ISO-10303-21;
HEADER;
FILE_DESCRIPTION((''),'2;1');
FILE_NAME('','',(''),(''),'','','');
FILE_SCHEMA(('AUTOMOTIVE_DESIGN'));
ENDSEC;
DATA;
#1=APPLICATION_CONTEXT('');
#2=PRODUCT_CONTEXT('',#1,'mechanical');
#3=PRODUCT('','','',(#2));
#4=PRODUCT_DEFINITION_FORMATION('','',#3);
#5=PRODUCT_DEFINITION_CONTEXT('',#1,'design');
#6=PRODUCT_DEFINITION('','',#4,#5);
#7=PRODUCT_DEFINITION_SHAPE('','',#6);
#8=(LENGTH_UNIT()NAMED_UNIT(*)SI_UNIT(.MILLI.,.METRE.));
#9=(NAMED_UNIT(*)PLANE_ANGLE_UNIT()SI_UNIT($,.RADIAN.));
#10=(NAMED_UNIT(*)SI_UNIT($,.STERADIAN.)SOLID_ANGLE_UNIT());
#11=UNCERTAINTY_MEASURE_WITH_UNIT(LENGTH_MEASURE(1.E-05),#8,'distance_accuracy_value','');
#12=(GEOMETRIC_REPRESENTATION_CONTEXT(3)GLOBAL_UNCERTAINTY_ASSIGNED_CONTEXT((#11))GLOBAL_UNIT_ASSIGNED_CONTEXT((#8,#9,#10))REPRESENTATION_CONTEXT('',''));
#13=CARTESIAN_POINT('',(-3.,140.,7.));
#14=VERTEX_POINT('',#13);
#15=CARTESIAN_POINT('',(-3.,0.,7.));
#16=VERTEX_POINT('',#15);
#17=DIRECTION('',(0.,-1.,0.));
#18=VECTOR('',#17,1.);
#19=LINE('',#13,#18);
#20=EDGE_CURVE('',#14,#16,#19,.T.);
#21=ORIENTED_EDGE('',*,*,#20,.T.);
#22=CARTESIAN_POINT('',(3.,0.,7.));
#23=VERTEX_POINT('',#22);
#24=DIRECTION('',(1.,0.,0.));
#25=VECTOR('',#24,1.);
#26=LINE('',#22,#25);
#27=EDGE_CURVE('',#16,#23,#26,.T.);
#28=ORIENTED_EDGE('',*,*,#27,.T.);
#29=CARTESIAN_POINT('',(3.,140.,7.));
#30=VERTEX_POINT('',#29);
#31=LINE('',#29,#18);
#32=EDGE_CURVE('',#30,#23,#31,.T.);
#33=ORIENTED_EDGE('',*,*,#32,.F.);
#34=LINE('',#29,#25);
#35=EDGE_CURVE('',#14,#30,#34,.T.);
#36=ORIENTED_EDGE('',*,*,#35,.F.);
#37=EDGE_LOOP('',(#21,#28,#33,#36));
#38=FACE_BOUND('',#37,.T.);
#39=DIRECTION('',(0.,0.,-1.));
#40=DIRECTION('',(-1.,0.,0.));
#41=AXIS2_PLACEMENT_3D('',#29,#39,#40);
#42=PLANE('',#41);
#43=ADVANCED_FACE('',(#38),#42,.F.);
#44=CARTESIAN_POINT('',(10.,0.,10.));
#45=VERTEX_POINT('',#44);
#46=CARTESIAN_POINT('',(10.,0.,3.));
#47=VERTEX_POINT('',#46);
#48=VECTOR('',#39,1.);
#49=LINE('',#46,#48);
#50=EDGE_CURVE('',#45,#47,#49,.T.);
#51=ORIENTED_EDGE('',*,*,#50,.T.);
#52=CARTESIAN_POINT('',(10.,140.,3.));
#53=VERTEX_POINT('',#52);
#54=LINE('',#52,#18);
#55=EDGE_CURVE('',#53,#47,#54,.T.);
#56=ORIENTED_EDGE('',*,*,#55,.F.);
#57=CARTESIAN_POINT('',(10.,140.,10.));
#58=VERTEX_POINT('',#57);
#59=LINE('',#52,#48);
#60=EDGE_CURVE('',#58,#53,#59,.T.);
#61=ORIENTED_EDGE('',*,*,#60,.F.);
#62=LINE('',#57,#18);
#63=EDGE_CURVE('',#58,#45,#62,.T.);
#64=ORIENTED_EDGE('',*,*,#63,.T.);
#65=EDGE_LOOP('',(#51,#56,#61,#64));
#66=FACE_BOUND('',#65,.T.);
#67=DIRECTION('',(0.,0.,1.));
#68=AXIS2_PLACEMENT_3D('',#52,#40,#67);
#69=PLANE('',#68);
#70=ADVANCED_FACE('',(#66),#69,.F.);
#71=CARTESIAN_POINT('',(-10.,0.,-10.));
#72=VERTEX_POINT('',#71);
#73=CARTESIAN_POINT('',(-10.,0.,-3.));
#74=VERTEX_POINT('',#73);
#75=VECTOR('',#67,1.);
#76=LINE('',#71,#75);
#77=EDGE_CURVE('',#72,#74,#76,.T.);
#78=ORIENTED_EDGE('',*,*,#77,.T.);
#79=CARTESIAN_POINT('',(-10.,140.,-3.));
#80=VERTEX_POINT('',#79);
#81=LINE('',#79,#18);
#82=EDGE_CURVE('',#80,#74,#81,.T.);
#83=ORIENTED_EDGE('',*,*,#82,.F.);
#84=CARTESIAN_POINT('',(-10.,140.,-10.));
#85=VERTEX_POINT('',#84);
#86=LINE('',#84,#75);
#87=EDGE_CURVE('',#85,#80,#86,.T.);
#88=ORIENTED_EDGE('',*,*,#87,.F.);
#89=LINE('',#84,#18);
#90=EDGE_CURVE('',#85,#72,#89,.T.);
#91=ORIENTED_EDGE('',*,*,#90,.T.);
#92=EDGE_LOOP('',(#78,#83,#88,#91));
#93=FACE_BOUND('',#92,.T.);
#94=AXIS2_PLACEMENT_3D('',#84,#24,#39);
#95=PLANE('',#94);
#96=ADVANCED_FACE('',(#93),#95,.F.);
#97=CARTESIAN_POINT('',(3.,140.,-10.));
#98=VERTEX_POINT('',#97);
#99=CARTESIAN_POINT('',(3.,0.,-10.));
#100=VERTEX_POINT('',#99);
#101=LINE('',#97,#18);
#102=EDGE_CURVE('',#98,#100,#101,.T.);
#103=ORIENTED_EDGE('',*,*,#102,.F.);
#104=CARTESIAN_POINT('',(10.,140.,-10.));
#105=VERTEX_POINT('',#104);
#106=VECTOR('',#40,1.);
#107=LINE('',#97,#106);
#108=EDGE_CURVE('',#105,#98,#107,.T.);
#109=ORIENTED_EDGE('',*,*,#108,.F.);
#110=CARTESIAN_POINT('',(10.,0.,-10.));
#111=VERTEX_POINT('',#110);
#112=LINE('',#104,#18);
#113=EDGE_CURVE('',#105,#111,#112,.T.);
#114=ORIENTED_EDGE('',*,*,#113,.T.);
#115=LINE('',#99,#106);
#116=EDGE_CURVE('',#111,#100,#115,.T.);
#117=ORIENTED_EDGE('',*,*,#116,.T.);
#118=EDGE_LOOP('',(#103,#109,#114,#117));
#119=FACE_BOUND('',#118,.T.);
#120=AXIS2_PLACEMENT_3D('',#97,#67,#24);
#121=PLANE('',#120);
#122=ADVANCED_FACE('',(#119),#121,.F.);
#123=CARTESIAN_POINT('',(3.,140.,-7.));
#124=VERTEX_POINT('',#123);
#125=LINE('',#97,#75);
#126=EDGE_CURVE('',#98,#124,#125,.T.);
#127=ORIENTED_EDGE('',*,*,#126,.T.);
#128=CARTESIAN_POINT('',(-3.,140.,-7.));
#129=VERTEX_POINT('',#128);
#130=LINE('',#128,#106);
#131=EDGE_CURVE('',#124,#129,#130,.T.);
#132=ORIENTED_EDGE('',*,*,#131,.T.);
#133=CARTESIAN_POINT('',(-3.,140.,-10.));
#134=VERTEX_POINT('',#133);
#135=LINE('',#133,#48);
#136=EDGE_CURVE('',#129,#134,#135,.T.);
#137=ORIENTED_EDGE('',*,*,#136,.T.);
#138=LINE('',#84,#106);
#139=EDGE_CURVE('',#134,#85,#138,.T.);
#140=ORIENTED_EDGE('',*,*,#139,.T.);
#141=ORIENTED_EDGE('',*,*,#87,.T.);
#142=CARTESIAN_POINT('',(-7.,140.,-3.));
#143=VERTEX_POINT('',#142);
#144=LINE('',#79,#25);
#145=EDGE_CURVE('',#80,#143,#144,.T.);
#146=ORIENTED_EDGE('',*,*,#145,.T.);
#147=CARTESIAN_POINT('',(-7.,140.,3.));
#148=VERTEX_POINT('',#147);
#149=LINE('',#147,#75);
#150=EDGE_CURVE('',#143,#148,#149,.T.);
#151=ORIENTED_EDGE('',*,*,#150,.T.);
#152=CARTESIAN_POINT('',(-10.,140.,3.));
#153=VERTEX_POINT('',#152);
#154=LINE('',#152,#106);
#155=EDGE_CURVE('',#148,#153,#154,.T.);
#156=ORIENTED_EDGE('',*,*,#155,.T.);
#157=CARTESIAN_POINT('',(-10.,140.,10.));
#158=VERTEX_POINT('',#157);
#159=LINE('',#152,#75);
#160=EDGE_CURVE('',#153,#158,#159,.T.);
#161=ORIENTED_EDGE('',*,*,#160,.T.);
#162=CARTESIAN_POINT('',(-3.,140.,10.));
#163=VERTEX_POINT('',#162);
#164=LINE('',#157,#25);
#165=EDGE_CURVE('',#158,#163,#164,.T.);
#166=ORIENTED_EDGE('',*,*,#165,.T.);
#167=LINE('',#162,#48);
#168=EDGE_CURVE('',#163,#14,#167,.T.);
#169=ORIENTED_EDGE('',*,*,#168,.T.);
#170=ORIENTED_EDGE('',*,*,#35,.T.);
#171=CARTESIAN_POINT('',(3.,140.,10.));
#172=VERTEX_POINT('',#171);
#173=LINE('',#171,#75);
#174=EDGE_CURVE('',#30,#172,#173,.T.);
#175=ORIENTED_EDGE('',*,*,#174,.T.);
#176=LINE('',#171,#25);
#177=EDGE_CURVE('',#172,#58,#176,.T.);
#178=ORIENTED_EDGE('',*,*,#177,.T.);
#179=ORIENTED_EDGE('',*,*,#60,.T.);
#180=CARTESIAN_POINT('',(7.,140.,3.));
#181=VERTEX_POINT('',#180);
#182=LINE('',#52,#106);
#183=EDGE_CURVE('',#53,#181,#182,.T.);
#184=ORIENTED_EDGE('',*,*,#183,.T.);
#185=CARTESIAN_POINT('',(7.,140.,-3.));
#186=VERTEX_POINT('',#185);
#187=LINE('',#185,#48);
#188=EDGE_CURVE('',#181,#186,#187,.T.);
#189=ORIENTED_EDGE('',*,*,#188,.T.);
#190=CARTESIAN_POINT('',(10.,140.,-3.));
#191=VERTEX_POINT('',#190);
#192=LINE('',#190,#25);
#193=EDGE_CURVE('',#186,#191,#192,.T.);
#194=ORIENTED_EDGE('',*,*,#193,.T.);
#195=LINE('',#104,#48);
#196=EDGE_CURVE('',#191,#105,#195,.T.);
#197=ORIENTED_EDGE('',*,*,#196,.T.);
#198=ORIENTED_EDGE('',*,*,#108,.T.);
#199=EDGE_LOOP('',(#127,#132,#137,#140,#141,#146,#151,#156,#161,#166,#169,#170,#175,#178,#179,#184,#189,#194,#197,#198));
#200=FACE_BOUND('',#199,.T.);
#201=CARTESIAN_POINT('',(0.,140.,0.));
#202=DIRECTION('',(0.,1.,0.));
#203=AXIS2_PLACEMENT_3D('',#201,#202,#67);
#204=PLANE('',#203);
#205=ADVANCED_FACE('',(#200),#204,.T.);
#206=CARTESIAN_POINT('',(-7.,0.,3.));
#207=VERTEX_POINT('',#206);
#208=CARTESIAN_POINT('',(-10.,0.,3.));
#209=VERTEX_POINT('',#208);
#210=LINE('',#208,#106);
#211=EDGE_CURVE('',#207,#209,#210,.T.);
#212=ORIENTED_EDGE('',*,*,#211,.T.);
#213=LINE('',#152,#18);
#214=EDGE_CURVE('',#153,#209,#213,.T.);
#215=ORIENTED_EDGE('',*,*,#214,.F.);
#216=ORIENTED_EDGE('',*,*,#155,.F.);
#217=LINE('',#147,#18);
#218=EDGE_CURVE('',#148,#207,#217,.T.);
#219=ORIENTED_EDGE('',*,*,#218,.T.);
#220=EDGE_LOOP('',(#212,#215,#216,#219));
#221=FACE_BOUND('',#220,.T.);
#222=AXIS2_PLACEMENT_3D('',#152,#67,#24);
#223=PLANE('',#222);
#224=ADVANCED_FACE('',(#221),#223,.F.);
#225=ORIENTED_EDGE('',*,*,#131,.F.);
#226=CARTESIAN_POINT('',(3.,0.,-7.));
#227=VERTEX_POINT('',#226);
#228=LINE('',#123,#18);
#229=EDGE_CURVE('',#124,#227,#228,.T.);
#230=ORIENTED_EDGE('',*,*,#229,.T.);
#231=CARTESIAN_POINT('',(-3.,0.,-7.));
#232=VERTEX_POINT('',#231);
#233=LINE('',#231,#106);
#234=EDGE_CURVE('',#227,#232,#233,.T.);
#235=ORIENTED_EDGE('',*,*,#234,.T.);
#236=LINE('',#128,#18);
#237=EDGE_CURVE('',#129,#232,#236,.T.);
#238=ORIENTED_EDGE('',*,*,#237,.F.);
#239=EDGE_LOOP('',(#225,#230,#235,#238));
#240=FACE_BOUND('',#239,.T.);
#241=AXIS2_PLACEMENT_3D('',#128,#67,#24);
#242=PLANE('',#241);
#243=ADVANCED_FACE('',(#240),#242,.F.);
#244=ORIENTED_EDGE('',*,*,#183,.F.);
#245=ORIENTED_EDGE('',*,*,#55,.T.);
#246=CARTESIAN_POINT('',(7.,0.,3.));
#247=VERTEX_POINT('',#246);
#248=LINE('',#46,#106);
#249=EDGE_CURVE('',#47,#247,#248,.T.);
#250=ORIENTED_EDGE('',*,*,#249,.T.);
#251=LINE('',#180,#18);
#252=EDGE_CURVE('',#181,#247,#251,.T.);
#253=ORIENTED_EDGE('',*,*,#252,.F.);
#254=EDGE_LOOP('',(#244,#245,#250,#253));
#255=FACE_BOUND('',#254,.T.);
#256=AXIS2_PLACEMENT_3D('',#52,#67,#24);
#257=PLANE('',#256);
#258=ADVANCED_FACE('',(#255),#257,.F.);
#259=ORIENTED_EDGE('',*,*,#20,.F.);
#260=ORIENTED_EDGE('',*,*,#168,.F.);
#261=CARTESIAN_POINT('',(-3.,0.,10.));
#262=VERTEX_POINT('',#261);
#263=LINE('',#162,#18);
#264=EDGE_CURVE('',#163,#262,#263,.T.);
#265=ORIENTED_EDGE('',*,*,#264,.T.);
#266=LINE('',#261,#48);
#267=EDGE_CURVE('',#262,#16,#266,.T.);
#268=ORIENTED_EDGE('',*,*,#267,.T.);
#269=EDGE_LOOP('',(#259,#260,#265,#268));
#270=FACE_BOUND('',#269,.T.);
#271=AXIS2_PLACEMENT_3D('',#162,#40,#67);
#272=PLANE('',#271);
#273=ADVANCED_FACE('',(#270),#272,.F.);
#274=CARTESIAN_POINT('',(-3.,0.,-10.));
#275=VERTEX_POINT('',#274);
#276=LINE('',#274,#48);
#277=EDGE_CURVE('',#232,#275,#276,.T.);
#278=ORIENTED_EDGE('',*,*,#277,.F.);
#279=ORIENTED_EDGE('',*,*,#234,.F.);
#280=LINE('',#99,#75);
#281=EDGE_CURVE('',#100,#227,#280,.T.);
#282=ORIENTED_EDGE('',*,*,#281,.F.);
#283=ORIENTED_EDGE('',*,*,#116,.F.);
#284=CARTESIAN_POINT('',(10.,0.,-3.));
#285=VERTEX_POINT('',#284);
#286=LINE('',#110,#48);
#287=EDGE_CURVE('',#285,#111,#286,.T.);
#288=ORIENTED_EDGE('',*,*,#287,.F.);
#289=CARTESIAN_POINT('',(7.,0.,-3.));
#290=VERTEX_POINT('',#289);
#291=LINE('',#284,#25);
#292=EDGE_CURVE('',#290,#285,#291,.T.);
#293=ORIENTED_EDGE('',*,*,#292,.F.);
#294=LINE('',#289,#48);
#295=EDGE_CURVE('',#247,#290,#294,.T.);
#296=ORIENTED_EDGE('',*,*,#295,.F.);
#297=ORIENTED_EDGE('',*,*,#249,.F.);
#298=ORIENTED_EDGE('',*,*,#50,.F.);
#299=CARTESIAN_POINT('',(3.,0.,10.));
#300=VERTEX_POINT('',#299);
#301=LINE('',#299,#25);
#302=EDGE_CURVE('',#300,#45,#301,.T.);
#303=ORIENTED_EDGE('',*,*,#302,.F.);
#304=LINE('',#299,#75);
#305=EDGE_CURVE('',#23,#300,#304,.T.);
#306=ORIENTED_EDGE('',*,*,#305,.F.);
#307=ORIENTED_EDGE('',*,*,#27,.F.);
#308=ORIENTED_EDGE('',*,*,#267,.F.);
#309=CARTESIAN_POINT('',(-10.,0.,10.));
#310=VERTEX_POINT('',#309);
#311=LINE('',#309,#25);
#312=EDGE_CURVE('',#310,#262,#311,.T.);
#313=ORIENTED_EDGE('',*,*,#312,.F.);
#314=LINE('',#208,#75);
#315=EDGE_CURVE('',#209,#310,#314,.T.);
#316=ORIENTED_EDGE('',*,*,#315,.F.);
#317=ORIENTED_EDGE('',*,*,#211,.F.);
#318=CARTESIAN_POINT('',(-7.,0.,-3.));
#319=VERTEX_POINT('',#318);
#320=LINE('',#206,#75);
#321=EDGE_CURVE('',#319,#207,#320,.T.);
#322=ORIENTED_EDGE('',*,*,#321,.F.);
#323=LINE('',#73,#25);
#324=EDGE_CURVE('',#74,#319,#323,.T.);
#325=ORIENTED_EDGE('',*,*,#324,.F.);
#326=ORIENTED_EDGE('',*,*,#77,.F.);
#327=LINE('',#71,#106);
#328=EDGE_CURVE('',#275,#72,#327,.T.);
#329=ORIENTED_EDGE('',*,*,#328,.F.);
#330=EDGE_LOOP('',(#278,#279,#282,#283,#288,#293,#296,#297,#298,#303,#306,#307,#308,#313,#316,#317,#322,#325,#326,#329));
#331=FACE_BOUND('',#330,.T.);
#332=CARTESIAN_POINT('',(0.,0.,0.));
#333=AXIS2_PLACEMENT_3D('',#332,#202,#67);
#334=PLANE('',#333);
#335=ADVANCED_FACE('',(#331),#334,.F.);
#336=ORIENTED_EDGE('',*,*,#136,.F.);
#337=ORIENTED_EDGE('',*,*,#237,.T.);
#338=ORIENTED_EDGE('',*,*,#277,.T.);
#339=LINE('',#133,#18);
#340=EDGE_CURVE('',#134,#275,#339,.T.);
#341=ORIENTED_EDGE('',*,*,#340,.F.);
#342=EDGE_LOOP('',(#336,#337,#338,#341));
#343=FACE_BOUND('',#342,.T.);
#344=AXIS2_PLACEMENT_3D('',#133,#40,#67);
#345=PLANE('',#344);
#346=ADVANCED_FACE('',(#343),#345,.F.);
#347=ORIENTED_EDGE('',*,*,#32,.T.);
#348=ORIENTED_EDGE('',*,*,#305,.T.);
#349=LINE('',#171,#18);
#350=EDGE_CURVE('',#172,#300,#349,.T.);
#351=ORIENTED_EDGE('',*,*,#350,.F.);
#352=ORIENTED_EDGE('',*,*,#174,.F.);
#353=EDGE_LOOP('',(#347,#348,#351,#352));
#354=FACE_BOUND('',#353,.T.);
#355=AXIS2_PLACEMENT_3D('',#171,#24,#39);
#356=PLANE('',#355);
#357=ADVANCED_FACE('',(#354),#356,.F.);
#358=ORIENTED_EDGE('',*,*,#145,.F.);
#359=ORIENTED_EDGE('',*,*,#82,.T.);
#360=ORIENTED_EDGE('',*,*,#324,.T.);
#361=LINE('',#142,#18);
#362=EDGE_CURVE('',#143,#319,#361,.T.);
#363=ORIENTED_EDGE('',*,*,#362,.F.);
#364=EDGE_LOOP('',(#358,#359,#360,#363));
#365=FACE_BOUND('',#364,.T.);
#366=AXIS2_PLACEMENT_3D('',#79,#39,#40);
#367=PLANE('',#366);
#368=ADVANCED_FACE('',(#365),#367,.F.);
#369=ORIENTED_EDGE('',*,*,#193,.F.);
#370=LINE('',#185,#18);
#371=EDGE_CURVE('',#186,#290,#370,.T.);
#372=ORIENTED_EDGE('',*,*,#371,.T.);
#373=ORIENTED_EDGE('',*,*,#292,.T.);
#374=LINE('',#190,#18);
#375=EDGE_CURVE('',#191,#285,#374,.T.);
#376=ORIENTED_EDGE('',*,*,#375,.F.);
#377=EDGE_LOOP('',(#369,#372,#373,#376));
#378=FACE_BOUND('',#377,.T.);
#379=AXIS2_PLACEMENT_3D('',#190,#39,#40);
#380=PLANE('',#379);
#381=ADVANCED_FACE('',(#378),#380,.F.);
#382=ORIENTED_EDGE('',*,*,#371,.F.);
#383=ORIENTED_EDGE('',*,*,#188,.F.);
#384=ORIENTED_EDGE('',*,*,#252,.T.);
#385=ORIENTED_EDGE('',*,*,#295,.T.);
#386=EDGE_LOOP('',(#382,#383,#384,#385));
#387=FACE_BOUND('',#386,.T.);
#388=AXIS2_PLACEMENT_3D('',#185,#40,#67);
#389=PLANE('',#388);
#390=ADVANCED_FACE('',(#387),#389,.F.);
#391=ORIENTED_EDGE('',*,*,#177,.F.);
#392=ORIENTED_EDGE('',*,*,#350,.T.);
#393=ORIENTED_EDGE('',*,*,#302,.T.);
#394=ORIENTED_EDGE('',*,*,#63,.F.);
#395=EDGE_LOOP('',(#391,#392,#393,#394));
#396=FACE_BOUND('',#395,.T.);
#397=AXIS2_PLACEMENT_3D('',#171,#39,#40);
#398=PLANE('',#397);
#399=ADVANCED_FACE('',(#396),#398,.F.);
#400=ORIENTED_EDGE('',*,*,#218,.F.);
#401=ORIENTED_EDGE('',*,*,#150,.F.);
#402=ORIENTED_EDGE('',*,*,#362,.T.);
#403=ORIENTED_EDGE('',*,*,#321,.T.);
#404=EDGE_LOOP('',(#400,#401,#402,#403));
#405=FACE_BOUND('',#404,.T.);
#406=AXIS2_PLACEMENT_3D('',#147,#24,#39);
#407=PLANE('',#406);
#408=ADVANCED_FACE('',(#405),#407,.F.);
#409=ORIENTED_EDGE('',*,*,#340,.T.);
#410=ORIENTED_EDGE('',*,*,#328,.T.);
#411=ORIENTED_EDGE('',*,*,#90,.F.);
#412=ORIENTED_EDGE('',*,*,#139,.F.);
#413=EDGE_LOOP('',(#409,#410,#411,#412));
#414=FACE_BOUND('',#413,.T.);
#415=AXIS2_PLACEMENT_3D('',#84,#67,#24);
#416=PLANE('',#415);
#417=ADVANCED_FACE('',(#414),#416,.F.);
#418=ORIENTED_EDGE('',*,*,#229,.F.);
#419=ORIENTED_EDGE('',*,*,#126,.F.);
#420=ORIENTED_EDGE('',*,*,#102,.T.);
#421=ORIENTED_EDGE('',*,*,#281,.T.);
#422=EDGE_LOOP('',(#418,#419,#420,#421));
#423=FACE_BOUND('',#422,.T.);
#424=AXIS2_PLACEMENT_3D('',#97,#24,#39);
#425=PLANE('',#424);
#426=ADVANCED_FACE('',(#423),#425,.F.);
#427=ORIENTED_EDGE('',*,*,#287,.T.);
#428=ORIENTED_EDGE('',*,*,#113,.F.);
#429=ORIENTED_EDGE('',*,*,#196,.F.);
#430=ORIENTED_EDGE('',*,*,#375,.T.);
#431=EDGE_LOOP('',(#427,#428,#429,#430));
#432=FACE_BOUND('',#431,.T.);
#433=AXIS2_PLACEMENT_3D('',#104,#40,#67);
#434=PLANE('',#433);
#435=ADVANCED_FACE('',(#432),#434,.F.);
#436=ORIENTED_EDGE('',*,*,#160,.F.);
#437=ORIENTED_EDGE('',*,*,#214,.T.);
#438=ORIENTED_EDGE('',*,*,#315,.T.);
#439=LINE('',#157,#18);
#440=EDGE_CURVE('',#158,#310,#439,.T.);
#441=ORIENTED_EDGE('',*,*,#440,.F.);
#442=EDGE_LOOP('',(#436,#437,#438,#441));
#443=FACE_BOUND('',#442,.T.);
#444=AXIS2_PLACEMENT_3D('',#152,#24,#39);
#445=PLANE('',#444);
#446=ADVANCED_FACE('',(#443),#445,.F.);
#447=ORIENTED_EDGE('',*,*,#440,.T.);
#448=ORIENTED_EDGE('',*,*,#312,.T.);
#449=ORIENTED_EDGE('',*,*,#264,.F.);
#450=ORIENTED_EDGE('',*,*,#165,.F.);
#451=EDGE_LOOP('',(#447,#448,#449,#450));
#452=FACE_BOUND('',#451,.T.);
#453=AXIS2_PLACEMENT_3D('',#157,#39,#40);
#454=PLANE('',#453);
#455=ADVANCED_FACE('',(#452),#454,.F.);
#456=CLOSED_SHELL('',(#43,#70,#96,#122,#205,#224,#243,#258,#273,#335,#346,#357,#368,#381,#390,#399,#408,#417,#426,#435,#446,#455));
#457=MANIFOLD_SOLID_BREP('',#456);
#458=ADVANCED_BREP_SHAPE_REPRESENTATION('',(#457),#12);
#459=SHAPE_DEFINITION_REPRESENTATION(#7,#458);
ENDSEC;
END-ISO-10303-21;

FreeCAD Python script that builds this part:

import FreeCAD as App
import Part
import Sketcher

V = App.Vector

doc = App.newDocument("Part")
body = doc.addObject("PartDesign::Body", "Body")

# Sketch on XZ plane
sketch1 = body.newObject("Sketcher::SketchObject", "Sketch")
sketch1.AttachmentSupport = (doc.getObject("XZ_Plane"), [""])
sketch1.MapMode = "FlatFace"
sketch1.addGeometry(Part.LineSegment(V(10, -10, 0), V(3, -10, 0)), False)
sketch1.addGeometry(Part.LineSegment(V(3, -10, 0), V(3, -7, 0)), False)
sketch1.addGeometry(Part.LineSegment(V(3, -7, 0), V(-3, -7, 0)), False)
sketch1.addGeometry(Part.LineSegment(V(-3, -7, 0), V(-3, -10, 0)), False)
sketch1.addGeometry(Part.LineSegment(V(-3, -10, 0), V(-10, -10, 0)), False)
sketch1.addGeometry(Part.LineSegment(V(-10, -10, 0), V(-10, -3, 0)), False)
sketch1.addGeometry(Part.LineSegment(V(-10, -3, 0), V(-7, -3, 0)), False)
sketch1.addGeometry(Part.LineSegment(V(-7, -3, 0), V(-7, 3, 0)), False)
sketch1.addGeometry(Part.LineSegment(V(-7, 3, 0), V(-10, 3, 0)), False)
sketch1.addGeometry(Part.LineSegment(V(-10, 3, 0), V(-10, 10, 0)), False)
sketch1.addGeometry(Part.LineSegment(V(-10, 10, 0), V(-3, 10, 0)), False)
sketch1.addGeometry(Part.LineSegment(V(-3, 10, 0), V(-3, 7, 0)), False)
sketch1.addGeometry(Part.LineSegment(V(-3, 7, 0), V(3, 7, 0)), False)
sketch1.addGeometry(Part.LineSegment(V(3, 7, 0), V(3, 10, 0)), False)
sketch1.addGeometry(Part.LineSegment(V(3, 10, 0), V(10, 10, 0)), False)
sketch1.addGeometry(Part.LineSegment(V(10, 10, 0), V(10, 3, 0)), False)
sketch1.addGeometry(Part.LineSegment(V(10, 3, 0), V(7, 3, 0)), False)
sketch1.addGeometry(Part.LineSegment(V(7, 3, 0), V(7, -3, 0)), False)
sketch1.addGeometry(Part.LineSegment(V(7, -3, 0), V(10, -3, 0)), False)
sketch1.addGeometry(Part.LineSegment(V(10, -3, 0), V(10, -10, 0)), False)
sketch1.addConstraint(Sketcher.Constraint("Coincident", 0, 2, 1, 1))
sketch1.addConstraint(Sketcher.Constraint("Coincident", 1, 2, 2, 1))
sketch1.addConstraint(Sketcher.Constraint("Coincident", 2, 2, 3, 1))
sketch1.addConstraint(Sketcher.Constraint("Coincident", 3, 2, 4, 1))
sketch1.addConstraint(Sketcher.Constraint("Coincident", 4, 2, 5, 1))
sketch1.addConstraint(Sketcher.Constraint("Coincident", 5, 2, 6, 1))
sketch1.addConstraint(Sketcher.Constraint("Coincident", 6, 2, 7, 1))
sketch1.addConstraint(Sketcher.Constraint("Coincident", 7, 2, 8, 1))
sketch1.addConstraint(Sketcher.Constraint("Coincident", 8, 2, 9, 1))
sketch1.addConstraint(Sketcher.Constraint("Coincident", 9, 2, 10, 1))
sketch1.addConstraint(Sketcher.Constraint("Coincident", 10, 2, 11, 1))
sketch1.addConstraint(Sketcher.Constraint("Coincident", 11, 2, 12, 1))
sketch1.addConstraint(Sketcher.Constraint("Coincident", 12, 2, 13, 1))
sketch1.addConstraint(Sketcher.Constraint("Coincident", 13, 2, 14, 1))
sketch1.addConstraint(Sketcher.Constraint("Coincident", 14, 2, 15, 1))
sketch1.addConstraint(Sketcher.Constraint("Coincident", 15, 2, 16, 1))
sketch1.addConstraint(Sketcher.Constraint("Coincident", 16, 2, 17, 1))
sketch1.addConstraint(Sketcher.Constraint("Coincident", 17, 2, 18, 1))
sketch1.addConstraint(Sketcher.Constraint("Coincident", 18, 2, 19, 1))
sketch1.addConstraint(Sketcher.Constraint("Coincident", 19, 2, 0, 1))
sketch1.addConstraint(Sketcher.Constraint("Horizontal", 0))
sketch1.addConstraint(Sketcher.Constraint("Vertical", 1))
sketch1.addConstraint(Sketcher.Constraint("Horizontal", 2))
sketch1.addConstraint(Sketcher.Constraint("Vertical", 3))
sketch1.addConstraint(Sketcher.Constraint("Horizontal", 4))
sketch1.addConstraint(Sketcher.Constraint("Vertical", 5))
sketch1.addConstraint(Sketcher.Constraint("Horizontal", 6))
sketch1.addConstraint(Sketcher.Constraint("Vertical", 7))
sketch1.addConstraint(Sketcher.Constraint("Horizontal", 8))
sketch1.addConstraint(Sketcher.Constraint("Vertical", 9))
sketch1.addConstraint(Sketcher.Constraint("Horizontal", 10))
sketch1.addConstraint(Sketcher.Constraint("Vertical", 11))
sketch1.addConstraint(Sketcher.Constraint("Horizontal", 12))
sketch1.addConstraint(Sketcher.Constraint("Vertical", 13))
sketch1.addConstraint(Sketcher.Constraint("Horizontal", 14))
sketch1.addConstraint(Sketcher.Constraint("Vertical", 15))
sketch1.addConstraint(Sketcher.Constraint("Horizontal", 16))
sketch1.addConstraint(Sketcher.Constraint("Vertical", 17))
sketch1.addConstraint(Sketcher.Constraint("Horizontal", 18))
sketch1.addConstraint(Sketcher.Constraint("Vertical", 19))
sketch1.addConstraint(Sketcher.Constraint("Symmetric", 0, 2, 10, 2, -1, 1))
sketch1.addConstraint(Sketcher.Constraint("Symmetric", 2, 2, 12, 2, -1, 1))
sketch1.addConstraint(Sketcher.Constraint("Symmetric", 4, 2, 14, 2, -1, 1))
sketch1.addConstraint(Sketcher.Constraint("Symmetric", 6, 2, 16, 2, -1, 1))
sketch1.addConstraint(Sketcher.Constraint("Symmetric", 8, 2, 18, 2, -1, 1))
sketch1.addConstraint(Sketcher.Constraint("Symmetric", 0, 2, 3, 2, -2))
sketch1.addConstraint(Sketcher.Constraint("Symmetric", 8, 2, 15, 2, -2))
sketch1.addConstraint(Sketcher.Constraint("Equal", 18, 1))
sketch1.addConstraint(Sketcher.Constraint("Equal", 14, 5))
sketch1.addConstraint(Sketcher.Constraint("Equal", 12, 7))
sketch1.addConstraint(Sketcher.Constraint("DistanceX", 0, 2, 0, 1, 7.0))
sketch1.addConstraint(Sketcher.Constraint("DistanceX", 2, 2, 2, 1, 6.0))
sketch1.addConstraint(Sketcher.Constraint("DistanceX", 6, 1, 6, 2, 3.0))
pad1 = body.newObject("PartDesign::Pad", "Pad")
pad1.Profile = sketch1
pad1.Length = 140
pad1.Reversed = True

doc.recompute()
